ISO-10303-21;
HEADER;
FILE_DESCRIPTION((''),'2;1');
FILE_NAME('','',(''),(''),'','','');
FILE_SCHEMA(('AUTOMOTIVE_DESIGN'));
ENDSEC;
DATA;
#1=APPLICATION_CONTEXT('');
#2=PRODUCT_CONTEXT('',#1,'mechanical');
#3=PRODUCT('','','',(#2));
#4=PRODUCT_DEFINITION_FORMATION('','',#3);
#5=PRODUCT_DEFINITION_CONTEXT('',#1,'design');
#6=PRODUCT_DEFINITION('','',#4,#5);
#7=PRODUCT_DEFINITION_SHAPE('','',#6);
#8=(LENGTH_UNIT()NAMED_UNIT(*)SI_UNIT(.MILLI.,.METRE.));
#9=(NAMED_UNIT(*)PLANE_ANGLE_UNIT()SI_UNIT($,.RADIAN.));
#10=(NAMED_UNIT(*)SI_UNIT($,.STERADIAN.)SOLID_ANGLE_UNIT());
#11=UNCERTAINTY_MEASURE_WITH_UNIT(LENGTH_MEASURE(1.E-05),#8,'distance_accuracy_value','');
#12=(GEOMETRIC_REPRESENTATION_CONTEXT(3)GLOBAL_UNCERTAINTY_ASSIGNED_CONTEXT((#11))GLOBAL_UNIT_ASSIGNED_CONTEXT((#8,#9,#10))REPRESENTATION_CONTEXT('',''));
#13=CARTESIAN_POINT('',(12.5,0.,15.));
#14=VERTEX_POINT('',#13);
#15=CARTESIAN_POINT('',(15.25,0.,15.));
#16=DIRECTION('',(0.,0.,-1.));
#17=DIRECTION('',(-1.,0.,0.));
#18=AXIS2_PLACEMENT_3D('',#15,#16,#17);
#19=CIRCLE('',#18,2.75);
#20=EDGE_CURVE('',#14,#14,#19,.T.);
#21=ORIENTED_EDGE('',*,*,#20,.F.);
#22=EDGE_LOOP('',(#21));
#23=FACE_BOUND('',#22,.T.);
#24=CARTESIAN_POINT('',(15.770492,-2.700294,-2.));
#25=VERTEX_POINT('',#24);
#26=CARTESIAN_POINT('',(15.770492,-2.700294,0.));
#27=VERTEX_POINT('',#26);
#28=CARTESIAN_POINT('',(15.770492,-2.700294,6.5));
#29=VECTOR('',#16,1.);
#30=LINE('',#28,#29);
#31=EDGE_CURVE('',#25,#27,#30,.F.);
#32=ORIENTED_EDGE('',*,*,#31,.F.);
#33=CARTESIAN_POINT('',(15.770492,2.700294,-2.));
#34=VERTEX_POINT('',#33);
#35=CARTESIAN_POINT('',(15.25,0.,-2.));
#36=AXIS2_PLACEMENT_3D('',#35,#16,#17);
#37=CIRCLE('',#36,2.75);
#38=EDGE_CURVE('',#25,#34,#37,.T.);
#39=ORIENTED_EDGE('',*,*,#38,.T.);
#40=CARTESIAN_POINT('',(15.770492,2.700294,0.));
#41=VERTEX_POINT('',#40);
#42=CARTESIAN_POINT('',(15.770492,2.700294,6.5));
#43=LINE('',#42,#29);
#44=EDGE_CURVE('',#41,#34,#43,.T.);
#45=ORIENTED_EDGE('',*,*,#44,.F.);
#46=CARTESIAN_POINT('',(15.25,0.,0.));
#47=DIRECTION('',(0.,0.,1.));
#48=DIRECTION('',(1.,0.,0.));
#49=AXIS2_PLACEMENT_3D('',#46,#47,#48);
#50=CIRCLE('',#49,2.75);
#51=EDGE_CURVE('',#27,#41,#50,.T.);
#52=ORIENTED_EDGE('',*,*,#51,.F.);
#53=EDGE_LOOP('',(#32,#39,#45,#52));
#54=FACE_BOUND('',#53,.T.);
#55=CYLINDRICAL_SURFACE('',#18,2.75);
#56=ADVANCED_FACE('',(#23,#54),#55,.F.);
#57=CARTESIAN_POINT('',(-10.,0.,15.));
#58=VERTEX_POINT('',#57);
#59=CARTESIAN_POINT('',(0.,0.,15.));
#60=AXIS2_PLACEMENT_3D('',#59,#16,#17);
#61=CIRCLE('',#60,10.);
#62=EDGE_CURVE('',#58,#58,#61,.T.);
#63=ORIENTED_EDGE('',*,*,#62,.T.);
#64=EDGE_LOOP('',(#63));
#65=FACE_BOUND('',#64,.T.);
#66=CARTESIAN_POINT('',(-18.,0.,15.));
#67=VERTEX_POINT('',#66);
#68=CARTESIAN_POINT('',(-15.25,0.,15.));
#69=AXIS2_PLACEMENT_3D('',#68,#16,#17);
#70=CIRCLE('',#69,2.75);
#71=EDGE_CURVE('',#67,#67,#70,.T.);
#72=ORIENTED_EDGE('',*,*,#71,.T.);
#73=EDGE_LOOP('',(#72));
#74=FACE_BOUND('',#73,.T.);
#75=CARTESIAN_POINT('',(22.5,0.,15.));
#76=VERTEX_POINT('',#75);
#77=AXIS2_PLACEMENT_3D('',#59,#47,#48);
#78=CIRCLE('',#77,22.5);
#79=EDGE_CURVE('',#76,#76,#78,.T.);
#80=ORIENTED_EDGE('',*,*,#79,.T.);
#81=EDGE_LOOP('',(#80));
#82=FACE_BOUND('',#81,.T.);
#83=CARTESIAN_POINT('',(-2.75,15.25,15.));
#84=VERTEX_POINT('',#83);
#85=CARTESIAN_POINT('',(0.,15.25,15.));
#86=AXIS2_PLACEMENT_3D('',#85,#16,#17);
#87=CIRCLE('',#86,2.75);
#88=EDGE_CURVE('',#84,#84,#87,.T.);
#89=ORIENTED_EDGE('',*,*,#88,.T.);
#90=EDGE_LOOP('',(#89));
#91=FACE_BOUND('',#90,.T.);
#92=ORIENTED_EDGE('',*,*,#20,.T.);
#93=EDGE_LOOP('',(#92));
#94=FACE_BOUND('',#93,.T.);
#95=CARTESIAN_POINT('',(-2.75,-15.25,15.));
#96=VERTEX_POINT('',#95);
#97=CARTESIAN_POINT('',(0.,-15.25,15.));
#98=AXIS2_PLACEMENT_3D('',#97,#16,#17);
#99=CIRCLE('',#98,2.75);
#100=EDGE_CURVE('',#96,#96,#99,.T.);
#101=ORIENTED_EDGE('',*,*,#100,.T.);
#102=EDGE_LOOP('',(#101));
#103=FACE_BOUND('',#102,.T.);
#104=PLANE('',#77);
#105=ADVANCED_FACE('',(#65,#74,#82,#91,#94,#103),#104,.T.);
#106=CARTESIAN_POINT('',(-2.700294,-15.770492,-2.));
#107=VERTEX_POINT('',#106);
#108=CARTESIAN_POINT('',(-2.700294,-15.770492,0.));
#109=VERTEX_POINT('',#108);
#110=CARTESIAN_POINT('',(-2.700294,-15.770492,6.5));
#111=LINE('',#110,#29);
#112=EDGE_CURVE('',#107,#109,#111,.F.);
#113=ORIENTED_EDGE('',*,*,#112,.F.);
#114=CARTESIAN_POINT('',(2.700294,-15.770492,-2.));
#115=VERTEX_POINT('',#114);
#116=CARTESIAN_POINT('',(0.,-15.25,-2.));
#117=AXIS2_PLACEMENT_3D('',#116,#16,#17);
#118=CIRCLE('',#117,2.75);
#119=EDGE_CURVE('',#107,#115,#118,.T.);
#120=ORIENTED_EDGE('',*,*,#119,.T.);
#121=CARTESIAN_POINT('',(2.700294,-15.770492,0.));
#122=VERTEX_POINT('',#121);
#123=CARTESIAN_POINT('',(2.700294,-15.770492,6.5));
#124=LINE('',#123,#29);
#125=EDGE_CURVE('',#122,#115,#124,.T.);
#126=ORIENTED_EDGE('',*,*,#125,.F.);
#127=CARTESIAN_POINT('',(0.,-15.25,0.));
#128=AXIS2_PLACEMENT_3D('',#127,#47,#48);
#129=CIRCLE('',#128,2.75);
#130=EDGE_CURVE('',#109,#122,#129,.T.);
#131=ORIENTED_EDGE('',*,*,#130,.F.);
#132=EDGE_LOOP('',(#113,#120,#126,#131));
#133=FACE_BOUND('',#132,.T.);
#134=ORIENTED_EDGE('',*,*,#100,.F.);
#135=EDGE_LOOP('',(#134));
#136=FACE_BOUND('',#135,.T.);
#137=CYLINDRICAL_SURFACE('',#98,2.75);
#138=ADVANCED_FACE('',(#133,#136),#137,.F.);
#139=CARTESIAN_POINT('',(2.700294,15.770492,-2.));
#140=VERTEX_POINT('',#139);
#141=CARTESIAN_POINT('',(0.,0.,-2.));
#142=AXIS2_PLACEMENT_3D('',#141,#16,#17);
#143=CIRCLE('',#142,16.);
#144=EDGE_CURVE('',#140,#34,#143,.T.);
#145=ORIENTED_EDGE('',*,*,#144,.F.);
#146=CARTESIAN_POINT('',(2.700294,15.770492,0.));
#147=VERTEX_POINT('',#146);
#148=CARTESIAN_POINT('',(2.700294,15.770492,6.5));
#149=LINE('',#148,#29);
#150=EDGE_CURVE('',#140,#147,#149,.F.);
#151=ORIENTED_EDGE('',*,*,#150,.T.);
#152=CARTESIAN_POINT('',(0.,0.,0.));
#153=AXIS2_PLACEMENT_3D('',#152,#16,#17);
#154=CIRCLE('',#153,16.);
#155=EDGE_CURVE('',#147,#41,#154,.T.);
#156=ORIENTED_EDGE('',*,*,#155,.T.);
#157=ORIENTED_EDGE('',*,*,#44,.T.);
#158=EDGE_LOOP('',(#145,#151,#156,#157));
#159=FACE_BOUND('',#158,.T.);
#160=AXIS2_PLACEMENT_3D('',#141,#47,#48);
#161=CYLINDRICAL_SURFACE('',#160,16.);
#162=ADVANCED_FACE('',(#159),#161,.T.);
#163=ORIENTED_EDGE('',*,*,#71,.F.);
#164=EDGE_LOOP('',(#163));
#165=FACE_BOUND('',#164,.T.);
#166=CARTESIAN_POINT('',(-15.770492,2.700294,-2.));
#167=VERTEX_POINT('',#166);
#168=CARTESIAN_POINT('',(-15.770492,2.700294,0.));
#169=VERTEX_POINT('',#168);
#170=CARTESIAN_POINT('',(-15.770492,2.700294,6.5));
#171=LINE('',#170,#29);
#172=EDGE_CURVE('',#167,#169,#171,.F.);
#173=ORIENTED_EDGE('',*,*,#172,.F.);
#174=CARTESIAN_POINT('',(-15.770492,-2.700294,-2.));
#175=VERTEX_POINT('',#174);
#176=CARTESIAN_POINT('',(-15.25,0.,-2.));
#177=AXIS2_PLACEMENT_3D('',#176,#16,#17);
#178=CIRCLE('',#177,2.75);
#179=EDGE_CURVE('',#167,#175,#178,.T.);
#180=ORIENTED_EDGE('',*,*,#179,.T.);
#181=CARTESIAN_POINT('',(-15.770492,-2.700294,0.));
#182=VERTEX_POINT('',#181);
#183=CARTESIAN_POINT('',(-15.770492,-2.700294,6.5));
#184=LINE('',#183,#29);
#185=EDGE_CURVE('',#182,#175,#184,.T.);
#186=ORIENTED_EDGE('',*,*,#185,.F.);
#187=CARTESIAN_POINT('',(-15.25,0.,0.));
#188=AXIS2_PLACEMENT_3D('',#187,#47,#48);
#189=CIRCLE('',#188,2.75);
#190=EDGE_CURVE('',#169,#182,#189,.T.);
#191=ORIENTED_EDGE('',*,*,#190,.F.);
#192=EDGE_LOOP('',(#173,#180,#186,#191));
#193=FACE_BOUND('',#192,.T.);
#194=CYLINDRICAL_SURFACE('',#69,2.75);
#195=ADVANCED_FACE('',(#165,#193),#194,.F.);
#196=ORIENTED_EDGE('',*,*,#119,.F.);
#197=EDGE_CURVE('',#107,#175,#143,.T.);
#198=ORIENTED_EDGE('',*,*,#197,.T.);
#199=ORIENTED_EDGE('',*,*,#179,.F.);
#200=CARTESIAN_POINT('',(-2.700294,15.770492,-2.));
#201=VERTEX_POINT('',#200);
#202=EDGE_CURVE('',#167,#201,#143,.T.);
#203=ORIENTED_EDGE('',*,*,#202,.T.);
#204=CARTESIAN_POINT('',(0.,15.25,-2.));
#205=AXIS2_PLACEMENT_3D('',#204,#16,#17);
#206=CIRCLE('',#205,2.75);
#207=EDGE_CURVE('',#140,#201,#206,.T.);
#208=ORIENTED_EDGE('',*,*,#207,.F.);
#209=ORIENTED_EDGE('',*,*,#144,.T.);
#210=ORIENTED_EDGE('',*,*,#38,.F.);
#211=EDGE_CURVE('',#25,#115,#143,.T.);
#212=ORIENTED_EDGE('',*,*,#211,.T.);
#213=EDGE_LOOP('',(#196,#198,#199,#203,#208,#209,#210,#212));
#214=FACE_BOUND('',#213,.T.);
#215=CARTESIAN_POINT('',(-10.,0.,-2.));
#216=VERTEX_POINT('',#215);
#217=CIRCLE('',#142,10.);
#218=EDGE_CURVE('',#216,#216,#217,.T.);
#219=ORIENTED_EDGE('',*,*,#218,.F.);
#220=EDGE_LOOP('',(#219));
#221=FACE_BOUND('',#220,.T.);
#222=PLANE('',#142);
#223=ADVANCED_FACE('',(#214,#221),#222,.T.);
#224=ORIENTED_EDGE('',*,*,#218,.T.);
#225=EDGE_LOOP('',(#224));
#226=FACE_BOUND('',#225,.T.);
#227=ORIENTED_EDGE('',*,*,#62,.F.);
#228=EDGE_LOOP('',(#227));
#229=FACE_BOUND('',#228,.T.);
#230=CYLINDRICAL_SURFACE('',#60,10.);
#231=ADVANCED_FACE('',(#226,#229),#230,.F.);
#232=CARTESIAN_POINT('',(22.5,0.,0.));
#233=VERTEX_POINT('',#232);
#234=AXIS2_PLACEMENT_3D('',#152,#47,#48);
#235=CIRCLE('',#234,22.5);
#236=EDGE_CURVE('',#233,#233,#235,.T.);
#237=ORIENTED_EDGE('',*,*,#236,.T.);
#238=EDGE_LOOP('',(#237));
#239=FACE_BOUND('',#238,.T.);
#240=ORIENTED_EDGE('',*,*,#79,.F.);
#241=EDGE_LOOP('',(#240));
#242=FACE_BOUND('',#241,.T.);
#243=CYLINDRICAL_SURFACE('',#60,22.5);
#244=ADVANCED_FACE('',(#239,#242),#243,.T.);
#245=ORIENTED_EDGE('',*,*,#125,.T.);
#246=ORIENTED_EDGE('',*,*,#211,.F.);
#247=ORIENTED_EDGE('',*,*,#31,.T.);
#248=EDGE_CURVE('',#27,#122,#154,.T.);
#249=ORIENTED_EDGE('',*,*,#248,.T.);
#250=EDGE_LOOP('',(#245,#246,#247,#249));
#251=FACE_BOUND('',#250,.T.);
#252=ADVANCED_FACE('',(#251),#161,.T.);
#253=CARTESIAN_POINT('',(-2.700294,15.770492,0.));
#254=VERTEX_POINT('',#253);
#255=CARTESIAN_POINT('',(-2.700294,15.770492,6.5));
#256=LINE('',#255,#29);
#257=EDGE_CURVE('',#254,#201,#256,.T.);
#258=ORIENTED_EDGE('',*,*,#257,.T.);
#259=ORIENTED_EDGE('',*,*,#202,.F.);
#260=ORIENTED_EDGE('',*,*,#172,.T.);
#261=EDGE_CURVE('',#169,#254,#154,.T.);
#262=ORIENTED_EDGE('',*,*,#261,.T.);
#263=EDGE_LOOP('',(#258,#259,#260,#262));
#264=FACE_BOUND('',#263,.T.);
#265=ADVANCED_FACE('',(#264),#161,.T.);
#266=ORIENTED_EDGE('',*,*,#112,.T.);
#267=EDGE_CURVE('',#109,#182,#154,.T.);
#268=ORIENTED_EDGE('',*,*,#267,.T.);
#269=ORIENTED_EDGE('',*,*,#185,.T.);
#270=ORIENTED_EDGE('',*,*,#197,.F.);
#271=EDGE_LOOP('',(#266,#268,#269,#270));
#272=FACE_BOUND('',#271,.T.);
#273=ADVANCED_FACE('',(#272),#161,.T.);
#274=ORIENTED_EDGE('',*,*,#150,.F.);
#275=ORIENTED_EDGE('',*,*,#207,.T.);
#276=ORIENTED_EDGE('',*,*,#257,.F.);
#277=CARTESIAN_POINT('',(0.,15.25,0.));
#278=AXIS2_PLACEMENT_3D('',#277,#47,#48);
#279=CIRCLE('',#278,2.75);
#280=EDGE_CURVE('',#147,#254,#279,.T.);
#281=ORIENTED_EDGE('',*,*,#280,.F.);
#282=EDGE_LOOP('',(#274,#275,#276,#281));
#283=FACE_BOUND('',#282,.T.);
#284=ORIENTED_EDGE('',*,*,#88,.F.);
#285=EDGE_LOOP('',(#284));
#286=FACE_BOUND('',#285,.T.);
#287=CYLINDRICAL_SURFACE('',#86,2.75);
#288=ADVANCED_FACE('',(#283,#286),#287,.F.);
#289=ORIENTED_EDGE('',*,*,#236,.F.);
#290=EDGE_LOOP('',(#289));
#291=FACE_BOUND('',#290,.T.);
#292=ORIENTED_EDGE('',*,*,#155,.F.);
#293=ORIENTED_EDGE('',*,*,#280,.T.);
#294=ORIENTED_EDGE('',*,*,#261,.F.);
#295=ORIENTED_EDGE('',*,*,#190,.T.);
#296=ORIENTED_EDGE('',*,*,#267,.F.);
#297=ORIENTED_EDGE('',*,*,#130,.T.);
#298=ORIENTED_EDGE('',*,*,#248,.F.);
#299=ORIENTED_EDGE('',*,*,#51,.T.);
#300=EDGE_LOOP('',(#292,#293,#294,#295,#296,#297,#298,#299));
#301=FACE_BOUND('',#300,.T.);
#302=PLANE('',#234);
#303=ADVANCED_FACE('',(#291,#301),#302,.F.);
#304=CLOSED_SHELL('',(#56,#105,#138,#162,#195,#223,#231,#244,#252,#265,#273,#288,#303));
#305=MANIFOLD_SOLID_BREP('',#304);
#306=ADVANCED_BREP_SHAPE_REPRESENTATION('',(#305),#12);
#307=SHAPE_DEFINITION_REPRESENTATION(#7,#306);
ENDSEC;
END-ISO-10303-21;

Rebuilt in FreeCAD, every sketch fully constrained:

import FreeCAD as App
import Part
import Sketcher
from FreeCAD import Vector

doc = App.newDocument("Part")
body = doc.addObject("PartDesign::Body", "Body")

# Sketch on XY plane
sketch1 = body.newObject("Sketcher::SketchObject", "Sketch")
sketch1.AttachmentSupport = (doc.getObject("XY_Plane"), [""])
sketch1.MapMode = "FlatFace"
sketch1.addGeometry(Part.Circle(Vector(0, 0, 0), Vector(0, 0, 1), 22), False)
sketch1.addConstraint([
    Sketcher.Constraint("Coincident", 0, 3, -1, 1),
    Sketcher.Constraint("Diameter", 0, 45.0),
])
pad1 = body.newObject("PartDesign::Pad", "Pad")
pad1.Profile = sketch1
pad1.Length = 15

# Sketch on XY plane
sketch2 = body.newObject("Sketcher::SketchObject", "Sketch001")
sketch2.AttachmentSupport = (doc.getObject("XY_Plane"), [""])
sketch2.MapMode = "FlatFace"
sketch2.addGeometry(Part.Circle(Vector(0, 0, 0), Vector(0, 0, 1), 16), False)
sketch2.addConstraint([
    Sketcher.Constraint("Coincident", 0, 3, -1, 1),
    Sketcher.Constraint("Diameter", 0, 32.0),
])
pad2 = body.newObject("PartDesign::Pad", "Pad001")
pad2.Profile = sketch2
pad2.Length = 2
pad2.Reversed = True

# Sketch on XY plane
sketch3 = body.newObject("Sketcher::SketchObject", "Sketch002")
sketch3.AttachmentSupport = (doc.getObject("XY_Plane"), [""])
sketch3.MapMode = "FlatFace"
sketch3.AttachmentOffset = App.Placement(Vector(0, 0, -2), App.Rotation())
sketch3.addGeometry(Part.Circle(Vector(0, 0, 0), Vector(0, 0, 1), 10), False)
sketch3.addConstraint([
    Sketcher.Constraint("Coincident", 0, 3, -1, 1),
    Sketcher.Constraint("Diameter", 0, 20.0),
])
pocket1 = body.newObject("PartDesign::Pocket", "Pocket")
pocket1.Profile = sketch3
pocket1.Type = "ThroughAll"
pocket1.Reversed = True

# Sketch on XY plane
sketch4 = body.newObject("Sketcher::SketchObject", "Sketch003")
sketch4.AttachmentSupport = (doc.getObject("XY_Plane"), [""])
sketch4.MapMode = "FlatFace"
sketch4.AttachmentOffset = App.Placement(Vector(0, 0, -2), App.Rotation())
sketch4.addGeometry([
    Part.Circle(Vector(0, 15.2, 0), Vector(0, 0, 1), 2.8),
    Part.Circle(Vector(-15.2, 0, 0), Vector(0, 0, 1), 2.8),
    Part.Circle(Vector(0, -15.2, 0), Vector(0, 0, 1), 2.8),
    Part.Circle(Vector(15.2, 0, 0), Vector(0, 0, 1), 2.8),
], False)
sketch4.addConstraint([
    Sketcher.Constraint("Equal", 0, 1),
    Sketcher.Constraint("Equal", 1, 2),
    Sketcher.Constraint("Equal", 2, 3),
    Sketcher.Constraint("Symmetric", 0, 3, 2, 3, -1, 1),
    Sketcher.Constraint("Symmetric", 1, 3, 3, 3, -1, 1),
    Sketcher.Constraint("PointOnObject", 0, 3, -2),
    Sketcher.Constraint("PointOnObject", 1, 3, -1),
    Sketcher.Constraint("Diameter", 0, 5.5),
    Sketcher.Constraint("DistanceY", 2, 3, 0, 3, 30.5),
    Sketcher.Constraint("DistanceX", 1, 3, 3, 3, 30.5),
])
pocket2 = body.newObject("PartDesign::Pocket", "Pocket001")
pocket2.Profile = sketch4
pocket2.Type = "ThroughAll"
pocket2.Reversed = True

doc.recompute()
